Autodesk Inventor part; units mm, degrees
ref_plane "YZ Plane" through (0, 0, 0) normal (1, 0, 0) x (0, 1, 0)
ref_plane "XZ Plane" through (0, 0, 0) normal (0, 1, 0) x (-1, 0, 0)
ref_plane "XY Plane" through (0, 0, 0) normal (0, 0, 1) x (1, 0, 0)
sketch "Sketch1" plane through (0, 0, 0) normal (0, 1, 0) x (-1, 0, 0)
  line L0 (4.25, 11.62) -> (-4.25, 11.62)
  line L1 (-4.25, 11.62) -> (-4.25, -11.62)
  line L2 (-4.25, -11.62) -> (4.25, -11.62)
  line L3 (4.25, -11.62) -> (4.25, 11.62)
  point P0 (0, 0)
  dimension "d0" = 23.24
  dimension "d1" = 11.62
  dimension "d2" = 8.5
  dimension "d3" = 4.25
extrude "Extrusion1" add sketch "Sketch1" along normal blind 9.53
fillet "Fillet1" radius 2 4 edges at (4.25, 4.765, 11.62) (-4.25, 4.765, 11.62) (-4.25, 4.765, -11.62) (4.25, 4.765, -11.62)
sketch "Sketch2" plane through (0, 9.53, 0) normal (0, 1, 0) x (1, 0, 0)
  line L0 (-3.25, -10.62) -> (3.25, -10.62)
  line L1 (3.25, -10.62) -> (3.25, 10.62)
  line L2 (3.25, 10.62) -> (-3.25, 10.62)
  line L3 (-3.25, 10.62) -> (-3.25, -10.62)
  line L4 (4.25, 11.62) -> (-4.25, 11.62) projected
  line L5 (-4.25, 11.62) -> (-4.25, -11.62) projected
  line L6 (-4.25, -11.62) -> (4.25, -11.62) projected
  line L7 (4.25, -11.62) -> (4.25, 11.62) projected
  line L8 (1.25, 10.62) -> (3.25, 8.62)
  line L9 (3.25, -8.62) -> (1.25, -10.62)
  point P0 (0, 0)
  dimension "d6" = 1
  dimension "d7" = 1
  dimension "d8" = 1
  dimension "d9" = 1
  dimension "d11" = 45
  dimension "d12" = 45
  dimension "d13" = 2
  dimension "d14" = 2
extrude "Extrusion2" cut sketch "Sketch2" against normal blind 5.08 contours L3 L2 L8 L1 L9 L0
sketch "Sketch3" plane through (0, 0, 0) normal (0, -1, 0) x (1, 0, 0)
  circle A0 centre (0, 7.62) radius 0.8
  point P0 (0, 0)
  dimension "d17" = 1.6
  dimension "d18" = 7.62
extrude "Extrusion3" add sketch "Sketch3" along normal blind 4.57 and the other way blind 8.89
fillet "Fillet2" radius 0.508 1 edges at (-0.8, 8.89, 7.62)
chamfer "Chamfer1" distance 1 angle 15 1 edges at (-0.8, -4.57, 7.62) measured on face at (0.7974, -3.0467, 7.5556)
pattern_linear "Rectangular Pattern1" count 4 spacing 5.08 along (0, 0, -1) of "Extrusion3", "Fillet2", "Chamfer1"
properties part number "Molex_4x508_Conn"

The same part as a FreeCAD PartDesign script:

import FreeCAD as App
import Part
import Sketcher

V = App.Vector
Q = App.Units.Quantity


def edges_at(feature, points):
    """Names of the edges that pass closest to the given points."""
    edges = feature.Shape.Edges
    near = lambda p: min(range(len(edges)), key=lambda i: edges[i].distToShape(Part.Vertex(*p))[0])
    return sorted({f"Edge{near(p) + 1}" for p in points})


def add_polygon(sketch, points):
    """Adds a closed chain of lines whose ends are joined by coincident constraints."""
    first, n = sketch.GeometryCount, len(points)
    for a, b in zip(points, points[1:] + points[:1]):
        sketch.addGeometry(Part.LineSegment(App.Vector(*a, 0), App.Vector(*b, 0)), False)
    for i in range(n):
        sketch.addConstraint(Sketcher.Constraint("Coincident", first + i, 2, first + (i + 1) % n, 1))

doc = App.newDocument("Part")
body = doc.addObject("PartDesign::Body", "Body")

# Sketch on XZ plane
sketch1 = body.newObject("Sketcher::SketchObject", "Sketch")
sketch1.AttachmentSupport = (doc.getObject("XZ_Plane"), [""])
sketch1.MapMode = "FlatFace"
add_polygon(sketch1, [(-4, -12), (-4, 12), (4, 12), (4, -12)])  # lines 0-3
sketch1.addConstraint(Sketcher.Constraint("Vertical", 0))
sketch1.addConstraint(Sketcher.Constraint("Horizontal", 1))
sketch1.addConstraint(Sketcher.Constraint("Vertical", 2))
sketch1.addConstraint(Sketcher.Constraint("Horizontal", 3))
sketch1.addConstraint(Sketcher.Constraint("Symmetric", 0, 2, 2, 2, -1, 1))
sketch1.addConstraint(Sketcher.Constraint("DistanceX", 1, 1, 1, 2, Q("8.5 mm")))
sketch1.addConstraint(Sketcher.Constraint("DistanceY", 0, 1, 0, 2, Q("23.24 mm")))
pad1 = body.newObject("PartDesign::Pad", "Pad")
pad1.Profile = sketch1
pad1.Length = 9.53
pad1.Reversed = True
doc.recompute()

fillet = body.newObject("PartDesign::Fillet", "Fillet")
fillet.Base = (pad1, edges_at(pad1, [
    (4.25, 4.765, 11.62),
    (-4.25, 4.765, 11.62),
    (-4.25, 4.765, -11.62),
    (4.25, 4.765, -11.62),
]))
fillet.Radius = 2

# Sketch on XZ plane
sketch2 = body.newObject("Sketcher::SketchObject", "Sketch001")
sketch2.AttachmentSupport = (doc.getObject("XZ_Plane"), [""])
sketch2.MapMode = "FlatFace"
sketch2.AttachmentOffset = App.Placement(V(0, 0, -9.53), App.Rotation())
add_polygon(sketch2, [(-3.2, -10.6), (-3.2, 10.6), (1.2, 10.6), (3.2, 8.6), (3.2, -8.6), (1.2, -10.6)])  # lines 0-5
sketch2.addConstraint(Sketcher.Constraint("Vertical", 0))
sketch2.addConstraint(Sketcher.Constraint("Horizontal", 1))
sketch2.addConstraint(Sketcher.Constraint("Vertical", 3))
sketch2.addConstraint(Sketcher.Constraint("Horizontal", 5))
sketch2.addConstraint(Sketcher.Constraint("Symmetric", 1, 2, 4, 2, -1))
sketch2.addConstraint(Sketcher.Constraint("Perpendicular", 2, 4))
sketch2.addConstraint(Sketcher.Constraint("Equal", 2, 4))
sketch2.addConstraint(Sketcher.Constraint("DistanceX", 1, 2, 2, 2, Q("2 mm")))
sketch2.addConstraint(Sketcher.Constraint("DistanceX", 1, 1, 1, 2, Q("4.5 mm")))
sketch2.addConstraint(Sketcher.Constraint("DistanceY", 0, 1, 0, 2, Q("21.24 mm")))
sketch2.addConstraint(Sketcher.Constraint("DistanceX", 0, 2, -1, 1, Q("3.25 mm")))
pocket1 = body.newObject("PartDesign::Pocket", "Pocket")
pocket1.Profile = sketch2
pocket1.Length = 5.08
pocket1.Reversed = True

# Sketch on XZ plane
sketch3 = body.newObject("Sketcher::SketchObject", "Sketch002")
sketch3.AttachmentSupport = (doc.getObject("XZ_Plane"), [""])
sketch3.MapMode = "FlatFace"
sketch3.addGeometry(Part.Circle(V(0, 7.6, 0), V(0, 0, 1), 0.8), False)
sketch3.addConstraint(Sketcher.Constraint("PointOnObject", 0, 3, -2))
sketch3.addConstraint(Sketcher.Constraint("Diameter", 0, Q("1.6 mm")))
sketch3.addConstraint(Sketcher.Constraint("DistanceY", -1, 1, 0, 3, Q("7.62 mm")))
pad2 = body.newObject("PartDesign::Pad", "Pad001")
pad2.Profile = sketch3
pad2.Type = "TwoLengths"
pad2.Length = 4.57
pad2.Length2 = 8.89
doc.recompute()

fillet2 = body.newObject("PartDesign::Fillet", "Fillet001")
fillet2.Base = (pad2, edges_at(pad2, [(-0.8, 8.89, 7.62)]))
fillet2.Radius = 0.508
doc.recompute()

chamfer = body.newObject("PartDesign::Chamfer", "Chamfer")
chamfer.Base = (fillet2, edges_at(fillet2, [(-0.8, -4.57, 7.62)]))
chamfer.ChamferType = "Distance and Angle"
chamfer.Size = 1
chamfer.Angle = 15
doc.recompute()

linearpattern = body.newObject("PartDesign::LinearPattern", "LinearPattern")
linearpattern.Originals = [pad2, fillet2, chamfer]
linearpattern.Direction = (doc.getObject("Z_Axis"), [""])
linearpattern.Mode = "offset"
linearpattern.Offset = 5.08
linearpattern.Occurrences = 4
linearpattern.Reversed = True
body.Tip = linearpattern

doc.recompute()
